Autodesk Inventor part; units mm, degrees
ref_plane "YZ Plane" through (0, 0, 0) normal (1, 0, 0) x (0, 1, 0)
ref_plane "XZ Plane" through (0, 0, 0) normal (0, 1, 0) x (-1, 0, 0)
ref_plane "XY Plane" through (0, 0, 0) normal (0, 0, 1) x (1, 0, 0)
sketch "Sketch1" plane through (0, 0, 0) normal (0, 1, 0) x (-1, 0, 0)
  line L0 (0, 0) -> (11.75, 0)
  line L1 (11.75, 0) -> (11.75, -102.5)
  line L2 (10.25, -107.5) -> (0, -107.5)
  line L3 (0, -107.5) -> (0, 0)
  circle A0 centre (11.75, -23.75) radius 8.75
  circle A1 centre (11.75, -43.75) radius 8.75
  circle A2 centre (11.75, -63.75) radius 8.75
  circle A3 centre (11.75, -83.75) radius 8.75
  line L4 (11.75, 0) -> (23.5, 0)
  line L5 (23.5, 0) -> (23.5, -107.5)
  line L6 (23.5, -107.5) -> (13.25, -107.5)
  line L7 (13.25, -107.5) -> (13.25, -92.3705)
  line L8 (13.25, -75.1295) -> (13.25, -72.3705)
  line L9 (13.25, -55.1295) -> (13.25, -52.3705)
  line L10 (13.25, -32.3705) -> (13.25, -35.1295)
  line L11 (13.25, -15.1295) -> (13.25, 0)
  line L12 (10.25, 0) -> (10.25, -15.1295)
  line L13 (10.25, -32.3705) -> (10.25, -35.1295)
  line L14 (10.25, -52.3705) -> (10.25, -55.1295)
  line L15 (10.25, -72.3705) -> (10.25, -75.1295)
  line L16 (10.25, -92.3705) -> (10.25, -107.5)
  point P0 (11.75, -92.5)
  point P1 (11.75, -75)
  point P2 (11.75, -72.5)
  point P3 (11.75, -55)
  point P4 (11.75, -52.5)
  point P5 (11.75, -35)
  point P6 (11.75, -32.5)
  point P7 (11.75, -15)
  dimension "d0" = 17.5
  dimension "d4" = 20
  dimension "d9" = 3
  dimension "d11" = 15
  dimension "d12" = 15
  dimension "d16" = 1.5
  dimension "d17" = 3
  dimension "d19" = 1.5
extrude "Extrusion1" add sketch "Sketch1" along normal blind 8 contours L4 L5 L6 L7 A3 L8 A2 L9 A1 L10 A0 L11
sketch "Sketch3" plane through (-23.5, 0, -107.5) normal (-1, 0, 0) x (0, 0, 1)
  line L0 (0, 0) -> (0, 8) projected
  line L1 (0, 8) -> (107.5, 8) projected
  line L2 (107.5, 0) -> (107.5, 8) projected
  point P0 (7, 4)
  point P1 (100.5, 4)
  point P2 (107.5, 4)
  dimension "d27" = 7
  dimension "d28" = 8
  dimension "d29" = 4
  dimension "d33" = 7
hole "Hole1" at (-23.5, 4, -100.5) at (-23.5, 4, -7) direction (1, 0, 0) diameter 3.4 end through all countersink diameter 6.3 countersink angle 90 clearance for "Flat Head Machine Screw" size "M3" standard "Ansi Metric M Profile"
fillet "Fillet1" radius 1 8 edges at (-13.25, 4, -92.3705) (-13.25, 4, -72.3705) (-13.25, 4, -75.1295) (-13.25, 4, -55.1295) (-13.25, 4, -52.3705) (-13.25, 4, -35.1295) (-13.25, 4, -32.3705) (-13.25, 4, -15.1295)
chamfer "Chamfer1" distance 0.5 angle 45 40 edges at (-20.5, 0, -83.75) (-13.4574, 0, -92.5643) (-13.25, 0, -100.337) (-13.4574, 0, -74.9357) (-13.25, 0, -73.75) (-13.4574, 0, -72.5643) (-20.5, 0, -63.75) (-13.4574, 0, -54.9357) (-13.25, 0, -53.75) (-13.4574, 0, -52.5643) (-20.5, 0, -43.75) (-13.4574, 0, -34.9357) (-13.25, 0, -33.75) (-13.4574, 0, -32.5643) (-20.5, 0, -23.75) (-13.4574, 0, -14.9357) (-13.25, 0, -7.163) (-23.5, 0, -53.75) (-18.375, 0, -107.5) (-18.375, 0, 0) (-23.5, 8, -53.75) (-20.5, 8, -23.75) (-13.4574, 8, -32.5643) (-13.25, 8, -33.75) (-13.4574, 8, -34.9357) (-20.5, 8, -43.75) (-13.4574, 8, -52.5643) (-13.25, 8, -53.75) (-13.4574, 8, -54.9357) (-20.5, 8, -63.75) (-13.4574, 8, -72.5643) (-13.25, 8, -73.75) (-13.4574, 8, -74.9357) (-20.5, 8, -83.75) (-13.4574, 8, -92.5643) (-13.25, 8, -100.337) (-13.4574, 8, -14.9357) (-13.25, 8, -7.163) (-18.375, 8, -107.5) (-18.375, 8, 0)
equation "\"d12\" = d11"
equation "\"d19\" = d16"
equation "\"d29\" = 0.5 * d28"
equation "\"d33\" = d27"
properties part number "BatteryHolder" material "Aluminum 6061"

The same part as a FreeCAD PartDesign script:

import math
import FreeCAD as App
import Part
import Sketcher
from FreeCAD import Vector


def edges_at(feature, points):
    """Names of the edges that pass closest to the given points."""
    edges = feature.Shape.Edges
    near = lambda p: min(range(len(edges)), key=lambda i: edges[i].distToShape(Part.Vertex(*p))[0])
    return sorted({f"Edge{near(p) + 1}" for p in points})

doc = App.newDocument("Part")
params = doc.addObject("Spreadsheet::Sheet", "Params")
for row, (alias, value) in enumerate([
    ("sketch1_radius", "8.75 mm"),
    ("sketch1_height", "107.5 mm"),
    ("sketch1_width", "10.25 mm"),
    ("pad1_length", "8 mm"),
    ("sketch2_diameter", "3.4 mm"),
    ("hole_diameter", "3.4 mm"),
    ("hole_csink_diameter", "6.3 mm"),
    ("fillet_radius", "1 mm"),
    ("chamfer_size", "0.5 mm"),
], start=1):
    params.set(f"A{row}", alias)
    params.set(f"B{row}", "=" + value)
    params.setAlias(f"B{row}", alias)

body = doc.addObject("PartDesign::Body", "Body")

sketch1 = doc.addObject("Sketcher::SketchObject", "Sketch")
body.addObject(sketch1)
sketch1.AttachmentSupport = (doc.XZ_Plane, [""])
sketch1.MapMode = "FlatFace"
sketch1.addGeometry(Part.LineSegment(Vector(-23.5, 0, 0), Vector(-13.2, 0, 0)), False)
sketch1.addGeometry(Part.LineSegment(Vector(-13.2, 0, 0), Vector(-13.2, -15.1, 0)), False)
sketch1.addGeometry(Part.ArcOfCircle(Part.Circle(Vector(-11.8, -23.8, 0), Vector(0, 0, 1), 8.8), math.radians(100), math.radians(260)), False)
sketch1.addGeometry(Part.LineSegment(Vector(-13.2, -32.4, 0), Vector(-13.2, -35.1, 0)), False)
sketch1.addGeometry(Part.ArcOfCircle(Part.Circle(Vector(-11.8, -43.8, 0), Vector(0, 0, 1), 8.8), math.radians(100), math.radians(260)), False)
sketch1.addGeometry(Part.LineSegment(Vector(-13.2, -52.4, 0), Vector(-13.2, -55.1, 0)), False)
sketch1.addGeometry(Part.ArcOfCircle(Part.Circle(Vector(-11.8, -63.8, 0), Vector(0, 0, 1), 8.8), math.radians(100), math.radians(260)), False)
sketch1.addGeometry(Part.LineSegment(Vector(-13.2, -72.4, 0), Vector(-13.2, -75.1, 0)), False)
sketch1.addGeometry(Part.ArcOfCircle(Part.Circle(Vector(-11.8, -83.8, 0), Vector(0, 0, 1), 8.8), math.radians(100), math.radians(260)), False)
sketch1.addGeometry(Part.LineSegment(Vector(-13.2, -92.4, 0), Vector(-13.2, -107.5, 0)), False)
sketch1.addGeometry(Part.LineSegment(Vector(-13.2, -107.5, 0), Vector(-23.5, -107.5, 0)), False)
sketch1.addGeometry(Part.LineSegment(Vector(-23.5, -107.5, 0), Vector(-23.5, 0, 0)), False)
sketch1.addConstraint(Sketcher.Constraint("Coincident", 0, 2, 1, 1))
sketch1.addConstraint(Sketcher.Constraint("Coincident", 1, 2, 2, 1))
sketch1.addConstraint(Sketcher.Constraint("Coincident", 2, 2, 3, 1))
sketch1.addConstraint(Sketcher.Constraint("Coincident", 3, 2, 4, 1))
sketch1.addConstraint(Sketcher.Constraint("Coincident", 4, 2, 5, 1))
sketch1.addConstraint(Sketcher.Constraint("Coincident", 5, 2, 6, 1))
sketch1.addConstraint(Sketcher.Constraint("Coincident", 6, 2, 7, 1))
sketch1.addConstraint(Sketcher.Constraint("Coincident", 7, 2, 8, 1))
sketch1.addConstraint(Sketcher.Constraint("Coincident", 8, 2, 9, 1))
sketch1.addConstraint(Sketcher.Constraint("Coincident", 9, 2, 10, 1))
sketch1.addConstraint(Sketcher.Constraint("Coincident", 10, 2, 11, 1))
sketch1.addConstraint(Sketcher.Constraint("Coincident", 11, 2, 0, 1))
sketch1.addConstraint(Sketcher.Constraint("Horizontal", 0))
sketch1.addConstraint(Sketcher.Constraint("Vertical", 1))
sketch1.addConstraint(Sketcher.Constraint("Vertical", 3))
sketch1.addConstraint(Sketcher.Constraint("Vertical", 5))
sketch1.addConstraint(Sketcher.Constraint("Vertical", 7))
sketch1.addConstraint(Sketcher.Constraint("Vertical", 9))
sketch1.addConstraint(Sketcher.Constraint("Horizontal", 10))
sketch1.addConstraint(Sketcher.Constraint("Vertical", 11))
sketch1.addConstraint(Sketcher.Constraint("Equal", 2, 4))
sketch1.addConstraint(Sketcher.Constraint("Equal", 4, 6))
sketch1.addConstraint(Sketcher.Constraint("Equal", 6, 8))
sketch1.addConstraint(Sketcher.Constraint("PointOnObject", 0, 2, -1))
sketch1.addConstraint(Sketcher.Constraint("Vertical", 2, 3, 4, 3))
sketch1.addConstraint(Sketcher.Constraint("Vertical", 4, 3, 6, 3))
sketch1.addConstraint(Sketcher.Constraint("Vertical", 6, 3, 8, 3))
sketch1.addConstraint(Sketcher.Constraint("Vertical", 1, 2, 2, 2))
sketch1.addConstraint(Sketcher.Constraint("Vertical", 3, 2, 4, 2))
sketch1.addConstraint(Sketcher.Constraint("Vertical", 5, 2, 6, 2))
sketch1.addConstraint(Sketcher.Constraint("Vertical", 7, 2, 8, 2))
sketch1.addConstraint(Sketcher.Constraint("Equal", 3, 5))
sketch1.addConstraint(Sketcher.Constraint("Equal", 5, 7))
sketch1.addConstraint(Sketcher.Constraint("Equal", 1, 9))
sketch1.addConstraint(Sketcher.Constraint("Radius", 2, 8.75))
sketch1.addConstraint(Sketcher.Constraint("DistanceY", 4, 3, 2, 3, 20.0))
sketch1.addConstraint(Sketcher.Constraint("DistanceX", 0, 2, 2, 3, 1.5))
sketch1.addConstraint(Sketcher.Constraint("DistanceY", 11, 1, 11, 2, 107.5))
sketch1.addConstraint(Sketcher.Constraint("DistanceX", 0, 1, 0, 2, 10.25))
sketch1.addConstraint(Sketcher.Constraint("DistanceX", 10, 2, -1, 1, 23.5))
sketch1.setExpression("Constraints[34]", "Params.sketch1_radius")
sketch1.setExpression("Constraints[37]", "Params.sketch1_height")
sketch1.setExpression("Constraints[38]", "Params.sketch1_width")
pad1 = doc.addObject("PartDesign::Pad", "Pad")
body.addObject(pad1)
pad1.Profile = sketch1
pad1.setExpression("Length", "Params.pad1_length")
pad1.Reversed = True

sketch2 = doc.addObject("Sketcher::SketchObject", "Sketch001")
body.addObject(sketch2)
sketch2.AttachmentSupport = (doc.YZ_Plane, [""])
sketch2.MapMode = "FlatFace"
sketch2.AttachmentOffset = App.Placement(Vector(0, 0, -23.5), App.Rotation())
sketch2.addGeometry(Part.Circle(Vector(4, -100.5, 0), Vector(0, 0, 1), 1.7), False)
sketch2.addGeometry(Part.Circle(Vector(4, -7, 0), Vector(0, 0, 1), 1.7), False)
sketch2.addConstraint(Sketcher.Constraint("Equal", 0, 1))
sketch2.addConstraint(Sketcher.Constraint("Vertical", 0, 3, 1, 3))
sketch2.addConstraint(Sketcher.Constraint("Diameter", 0, 3.4))
sketch2.addConstraint(Sketcher.Constraint("DistanceX", -1, 1, 0, 3, 4.0))
sketch2.addConstraint(Sketcher.Constraint("DistanceY", 1, 3, -1, 1, 7.0))
sketch2.addConstraint(Sketcher.Constraint("DistanceY", 0, 3, -1, 1, 100.5))
sketch2.setExpression("Constraints[2]", "Params.sketch2_diameter")
doc.recompute()
hole = doc.addObject("PartDesign::Hole", "Hole")
body.addObject(hole)
hole.Profile = sketch2
hole.ThreadType = "None"
hole.setExpression("Diameter", "Params.hole_diameter")
hole.DepthType = "ThroughAll"
hole.HoleCutType = "Countersink"
hole.setExpression("HoleCutDiameter", "Params.hole_csink_diameter")
hole.HoleCutCountersinkAngle = 90
hole.Reversed = True
doc.recompute()

fillet = doc.addObject("PartDesign::Fillet", "Fillet")
body.addObject(fillet)
fillet.Base = (hole, edges_at(hole, [
    (-13.25, 4, -92.371),
    (-13.25, 4, -72.371),
    (-13.25, 4, -75.129),
    (-13.25, 4, -55.13),
    (-13.25, 4, -52.37),
    (-13.25, 4, -35.13),
    (-13.25, 4, -32.37),
    (-13.25, 4, -15.13),
]))
fillet.setExpression("Radius", "Params.fillet_radius")
doc.recompute()

chamfer = doc.addObject("PartDesign::Chamfer", "Chamfer")
body.addObject(chamfer)
chamfer.Base = (fillet, edges_at(fillet, [
    (-20.5, 0, -83.75),
    (-13.457, 0, -92.564),
    (-13.25, 0, -100.337),
    (-13.457, 0, -74.936),
    (-13.25, 0, -73.75),
    (-13.457, 0, -72.564),
    (-20.5, 0, -63.75),
    (-13.457, 0, -54.936),
    (-13.25, 0, -53.75),
    (-13.457, 0, -52.564),
    (-20.5, 0, -43.75),
    (-13.457, 0, -34.936),
    (-13.25, 0, -33.75),
    (-13.457, 0, -32.564),
    (-20.5, 0, -23.75),
    (-13.457, 0, -14.936),
    (-13.25, 0, -7.163),
    (-23.5, 0, -53.75),
    (-18.375, 0, -107.5),
    (-18.375, 0, 0),
    (-23.5, 8, -53.75),
    (-20.5, 8, -23.75),
    (-13.457, 8, -32.564),
    (-13.25, 8, -33.75),
    (-13.457, 8, -34.936),
    (-20.5, 8, -43.75),
    (-13.457, 8, -52.564),
    (-13.25, 8, -53.75),
    (-13.457, 8, -54.936),
    (-20.5, 8, -63.75),
    (-13.457, 8, -72.564),
    (-13.25, 8, -73.75),
    (-13.457, 8, -74.936),
    (-20.5, 8, -83.75),
    (-13.457, 8, -92.564),
    (-13.25, 8, -100.337),
    (-13.457, 8, -14.936),
    (-13.25, 8, -7.163),
    (-18.375, 8, -107.5),
    (-18.375, 8, 0),
]))
chamfer.setExpression("Size", "Params.chamfer_size")

doc.recompute()
